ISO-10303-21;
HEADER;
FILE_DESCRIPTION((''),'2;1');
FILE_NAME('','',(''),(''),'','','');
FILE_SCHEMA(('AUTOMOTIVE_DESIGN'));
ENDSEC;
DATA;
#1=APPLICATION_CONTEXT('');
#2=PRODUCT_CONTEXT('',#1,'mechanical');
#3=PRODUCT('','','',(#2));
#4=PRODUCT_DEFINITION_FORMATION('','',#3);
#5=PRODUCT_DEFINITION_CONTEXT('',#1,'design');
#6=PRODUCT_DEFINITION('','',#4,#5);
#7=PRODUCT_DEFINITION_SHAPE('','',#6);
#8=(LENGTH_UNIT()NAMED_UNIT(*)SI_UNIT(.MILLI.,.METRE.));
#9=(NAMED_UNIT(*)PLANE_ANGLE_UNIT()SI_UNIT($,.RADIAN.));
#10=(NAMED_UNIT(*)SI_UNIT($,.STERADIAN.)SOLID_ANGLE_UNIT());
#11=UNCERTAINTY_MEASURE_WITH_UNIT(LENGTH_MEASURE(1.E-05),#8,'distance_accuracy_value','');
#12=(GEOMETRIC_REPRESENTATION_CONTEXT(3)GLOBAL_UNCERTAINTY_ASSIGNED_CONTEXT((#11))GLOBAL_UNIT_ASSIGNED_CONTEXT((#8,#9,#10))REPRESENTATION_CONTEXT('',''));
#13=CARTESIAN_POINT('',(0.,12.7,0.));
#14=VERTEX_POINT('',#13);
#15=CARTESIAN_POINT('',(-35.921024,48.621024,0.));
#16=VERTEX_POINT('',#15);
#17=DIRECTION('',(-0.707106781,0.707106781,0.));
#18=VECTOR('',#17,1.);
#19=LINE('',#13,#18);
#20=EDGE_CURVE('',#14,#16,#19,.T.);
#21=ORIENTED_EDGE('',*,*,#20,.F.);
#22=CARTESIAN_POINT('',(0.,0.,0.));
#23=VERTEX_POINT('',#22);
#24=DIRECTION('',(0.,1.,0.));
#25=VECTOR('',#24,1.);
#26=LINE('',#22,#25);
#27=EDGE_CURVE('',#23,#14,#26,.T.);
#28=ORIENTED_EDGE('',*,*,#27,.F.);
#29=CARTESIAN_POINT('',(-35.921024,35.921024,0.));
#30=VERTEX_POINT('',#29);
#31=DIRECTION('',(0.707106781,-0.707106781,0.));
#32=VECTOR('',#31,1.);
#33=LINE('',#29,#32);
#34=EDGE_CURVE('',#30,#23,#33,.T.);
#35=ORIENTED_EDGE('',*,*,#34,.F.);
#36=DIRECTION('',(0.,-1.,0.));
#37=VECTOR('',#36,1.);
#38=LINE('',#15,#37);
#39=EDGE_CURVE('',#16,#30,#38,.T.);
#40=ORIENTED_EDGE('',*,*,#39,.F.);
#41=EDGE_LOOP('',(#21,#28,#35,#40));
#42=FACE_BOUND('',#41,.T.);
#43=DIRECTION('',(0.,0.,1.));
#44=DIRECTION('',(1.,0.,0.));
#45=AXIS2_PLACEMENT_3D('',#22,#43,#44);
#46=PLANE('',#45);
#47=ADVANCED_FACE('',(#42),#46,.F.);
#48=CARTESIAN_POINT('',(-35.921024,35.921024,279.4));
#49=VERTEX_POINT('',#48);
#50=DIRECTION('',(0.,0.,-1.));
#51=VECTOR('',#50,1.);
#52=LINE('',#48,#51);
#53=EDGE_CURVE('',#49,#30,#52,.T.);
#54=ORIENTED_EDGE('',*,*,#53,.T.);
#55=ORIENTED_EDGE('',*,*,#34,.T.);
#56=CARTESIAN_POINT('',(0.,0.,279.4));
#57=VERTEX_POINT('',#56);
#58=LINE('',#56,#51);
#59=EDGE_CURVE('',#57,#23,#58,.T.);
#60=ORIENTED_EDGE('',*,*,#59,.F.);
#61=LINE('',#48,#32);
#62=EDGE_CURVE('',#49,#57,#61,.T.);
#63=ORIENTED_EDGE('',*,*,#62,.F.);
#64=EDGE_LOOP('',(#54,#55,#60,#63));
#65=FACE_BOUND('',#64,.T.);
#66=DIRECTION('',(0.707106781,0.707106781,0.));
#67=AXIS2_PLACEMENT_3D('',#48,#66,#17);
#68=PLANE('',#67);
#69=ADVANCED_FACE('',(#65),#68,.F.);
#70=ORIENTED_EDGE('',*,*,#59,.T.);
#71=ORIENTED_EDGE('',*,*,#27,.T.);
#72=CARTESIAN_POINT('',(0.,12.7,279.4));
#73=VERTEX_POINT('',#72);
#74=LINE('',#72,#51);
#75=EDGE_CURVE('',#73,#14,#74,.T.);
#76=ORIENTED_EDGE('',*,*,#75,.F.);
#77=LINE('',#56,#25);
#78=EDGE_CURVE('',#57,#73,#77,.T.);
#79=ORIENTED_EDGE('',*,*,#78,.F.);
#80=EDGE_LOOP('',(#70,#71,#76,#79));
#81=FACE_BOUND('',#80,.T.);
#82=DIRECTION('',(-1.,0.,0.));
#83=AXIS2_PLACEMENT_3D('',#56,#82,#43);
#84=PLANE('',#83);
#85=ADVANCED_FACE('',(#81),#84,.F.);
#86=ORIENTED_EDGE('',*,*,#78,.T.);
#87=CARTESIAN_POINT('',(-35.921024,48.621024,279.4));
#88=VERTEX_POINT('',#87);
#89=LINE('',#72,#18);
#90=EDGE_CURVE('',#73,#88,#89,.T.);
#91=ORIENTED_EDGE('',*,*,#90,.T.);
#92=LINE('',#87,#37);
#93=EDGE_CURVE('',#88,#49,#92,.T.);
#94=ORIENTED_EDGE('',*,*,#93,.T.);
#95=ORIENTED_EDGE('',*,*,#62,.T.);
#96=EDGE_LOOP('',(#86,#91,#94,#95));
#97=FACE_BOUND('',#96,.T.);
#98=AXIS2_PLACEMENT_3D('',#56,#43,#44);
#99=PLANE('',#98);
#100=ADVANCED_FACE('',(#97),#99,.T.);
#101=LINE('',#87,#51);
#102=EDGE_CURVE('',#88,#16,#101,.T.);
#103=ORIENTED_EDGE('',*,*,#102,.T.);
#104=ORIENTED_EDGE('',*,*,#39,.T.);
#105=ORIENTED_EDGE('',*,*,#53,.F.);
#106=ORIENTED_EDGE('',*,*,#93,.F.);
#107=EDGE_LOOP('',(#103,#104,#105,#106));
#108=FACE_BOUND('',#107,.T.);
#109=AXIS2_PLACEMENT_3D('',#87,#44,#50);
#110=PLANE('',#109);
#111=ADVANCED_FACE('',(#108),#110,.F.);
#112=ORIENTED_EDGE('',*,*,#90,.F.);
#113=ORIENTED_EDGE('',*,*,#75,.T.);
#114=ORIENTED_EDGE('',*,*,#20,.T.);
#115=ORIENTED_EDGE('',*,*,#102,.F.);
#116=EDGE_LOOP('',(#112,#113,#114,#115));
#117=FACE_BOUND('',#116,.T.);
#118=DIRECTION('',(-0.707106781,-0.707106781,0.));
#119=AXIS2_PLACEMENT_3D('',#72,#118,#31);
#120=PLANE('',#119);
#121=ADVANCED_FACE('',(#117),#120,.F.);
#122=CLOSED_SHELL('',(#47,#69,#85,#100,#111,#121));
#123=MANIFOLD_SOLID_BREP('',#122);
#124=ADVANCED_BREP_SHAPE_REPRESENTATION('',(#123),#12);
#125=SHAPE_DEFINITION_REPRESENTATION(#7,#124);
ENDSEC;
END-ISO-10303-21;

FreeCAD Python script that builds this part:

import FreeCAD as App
import Part
import Sketcher
Q = App.Units.Quantity


def add_polygon(sketch, points):
    """Adds a closed chain of lines whose ends are joined by coincident constraints."""
    first, n = sketch.GeometryCount, len(points)
    for a, b in zip(points, points[1:] + points[:1]):
        sketch.addGeometry(Part.LineSegment(App.Vector(*a, 0), App.Vector(*b, 0)), False)
    for i in range(n):
        sketch.addConstraint(Sketcher.Constraint("Coincident", first + i, 2, first + (i + 1) % n, 1))

doc = App.newDocument("Part")
body = doc.addObject("PartDesign::Body", "Body")

# Sketch on XY plane
sketch1 = body.newObject("Sketcher::SketchObject", "Sketch")
sketch1.AttachmentSupport = (doc.getObject("XY_Plane"), [""])
sketch1.MapMode = "FlatFace"
add_polygon(sketch1, [(0, 0), (0, 13), (-36, 49), (-36, 36)])  # lines 0-3
sketch1.addConstraint([
    Sketcher.Constraint("Vertical", 0),
    Sketcher.Constraint("Vertical", 2),
    Sketcher.Constraint("Coincident", 3, 2, -1, 1),
    Sketcher.Constraint("Parallel", 1, 3),
    Sketcher.Constraint("Distance", 1, Q("2 in")),
    Sketcher.Constraint("DistanceY", 0, 1, 0, 2, Q("0.5 in")),
    Sketcher.Constraint("Angle", 1, Q("135 deg")),
])
pad1 = body.newObject("PartDesign::Pad", "Pad")
pad1.Profile = sketch1
pad1.Length = Q("11 in")

doc.recompute()
